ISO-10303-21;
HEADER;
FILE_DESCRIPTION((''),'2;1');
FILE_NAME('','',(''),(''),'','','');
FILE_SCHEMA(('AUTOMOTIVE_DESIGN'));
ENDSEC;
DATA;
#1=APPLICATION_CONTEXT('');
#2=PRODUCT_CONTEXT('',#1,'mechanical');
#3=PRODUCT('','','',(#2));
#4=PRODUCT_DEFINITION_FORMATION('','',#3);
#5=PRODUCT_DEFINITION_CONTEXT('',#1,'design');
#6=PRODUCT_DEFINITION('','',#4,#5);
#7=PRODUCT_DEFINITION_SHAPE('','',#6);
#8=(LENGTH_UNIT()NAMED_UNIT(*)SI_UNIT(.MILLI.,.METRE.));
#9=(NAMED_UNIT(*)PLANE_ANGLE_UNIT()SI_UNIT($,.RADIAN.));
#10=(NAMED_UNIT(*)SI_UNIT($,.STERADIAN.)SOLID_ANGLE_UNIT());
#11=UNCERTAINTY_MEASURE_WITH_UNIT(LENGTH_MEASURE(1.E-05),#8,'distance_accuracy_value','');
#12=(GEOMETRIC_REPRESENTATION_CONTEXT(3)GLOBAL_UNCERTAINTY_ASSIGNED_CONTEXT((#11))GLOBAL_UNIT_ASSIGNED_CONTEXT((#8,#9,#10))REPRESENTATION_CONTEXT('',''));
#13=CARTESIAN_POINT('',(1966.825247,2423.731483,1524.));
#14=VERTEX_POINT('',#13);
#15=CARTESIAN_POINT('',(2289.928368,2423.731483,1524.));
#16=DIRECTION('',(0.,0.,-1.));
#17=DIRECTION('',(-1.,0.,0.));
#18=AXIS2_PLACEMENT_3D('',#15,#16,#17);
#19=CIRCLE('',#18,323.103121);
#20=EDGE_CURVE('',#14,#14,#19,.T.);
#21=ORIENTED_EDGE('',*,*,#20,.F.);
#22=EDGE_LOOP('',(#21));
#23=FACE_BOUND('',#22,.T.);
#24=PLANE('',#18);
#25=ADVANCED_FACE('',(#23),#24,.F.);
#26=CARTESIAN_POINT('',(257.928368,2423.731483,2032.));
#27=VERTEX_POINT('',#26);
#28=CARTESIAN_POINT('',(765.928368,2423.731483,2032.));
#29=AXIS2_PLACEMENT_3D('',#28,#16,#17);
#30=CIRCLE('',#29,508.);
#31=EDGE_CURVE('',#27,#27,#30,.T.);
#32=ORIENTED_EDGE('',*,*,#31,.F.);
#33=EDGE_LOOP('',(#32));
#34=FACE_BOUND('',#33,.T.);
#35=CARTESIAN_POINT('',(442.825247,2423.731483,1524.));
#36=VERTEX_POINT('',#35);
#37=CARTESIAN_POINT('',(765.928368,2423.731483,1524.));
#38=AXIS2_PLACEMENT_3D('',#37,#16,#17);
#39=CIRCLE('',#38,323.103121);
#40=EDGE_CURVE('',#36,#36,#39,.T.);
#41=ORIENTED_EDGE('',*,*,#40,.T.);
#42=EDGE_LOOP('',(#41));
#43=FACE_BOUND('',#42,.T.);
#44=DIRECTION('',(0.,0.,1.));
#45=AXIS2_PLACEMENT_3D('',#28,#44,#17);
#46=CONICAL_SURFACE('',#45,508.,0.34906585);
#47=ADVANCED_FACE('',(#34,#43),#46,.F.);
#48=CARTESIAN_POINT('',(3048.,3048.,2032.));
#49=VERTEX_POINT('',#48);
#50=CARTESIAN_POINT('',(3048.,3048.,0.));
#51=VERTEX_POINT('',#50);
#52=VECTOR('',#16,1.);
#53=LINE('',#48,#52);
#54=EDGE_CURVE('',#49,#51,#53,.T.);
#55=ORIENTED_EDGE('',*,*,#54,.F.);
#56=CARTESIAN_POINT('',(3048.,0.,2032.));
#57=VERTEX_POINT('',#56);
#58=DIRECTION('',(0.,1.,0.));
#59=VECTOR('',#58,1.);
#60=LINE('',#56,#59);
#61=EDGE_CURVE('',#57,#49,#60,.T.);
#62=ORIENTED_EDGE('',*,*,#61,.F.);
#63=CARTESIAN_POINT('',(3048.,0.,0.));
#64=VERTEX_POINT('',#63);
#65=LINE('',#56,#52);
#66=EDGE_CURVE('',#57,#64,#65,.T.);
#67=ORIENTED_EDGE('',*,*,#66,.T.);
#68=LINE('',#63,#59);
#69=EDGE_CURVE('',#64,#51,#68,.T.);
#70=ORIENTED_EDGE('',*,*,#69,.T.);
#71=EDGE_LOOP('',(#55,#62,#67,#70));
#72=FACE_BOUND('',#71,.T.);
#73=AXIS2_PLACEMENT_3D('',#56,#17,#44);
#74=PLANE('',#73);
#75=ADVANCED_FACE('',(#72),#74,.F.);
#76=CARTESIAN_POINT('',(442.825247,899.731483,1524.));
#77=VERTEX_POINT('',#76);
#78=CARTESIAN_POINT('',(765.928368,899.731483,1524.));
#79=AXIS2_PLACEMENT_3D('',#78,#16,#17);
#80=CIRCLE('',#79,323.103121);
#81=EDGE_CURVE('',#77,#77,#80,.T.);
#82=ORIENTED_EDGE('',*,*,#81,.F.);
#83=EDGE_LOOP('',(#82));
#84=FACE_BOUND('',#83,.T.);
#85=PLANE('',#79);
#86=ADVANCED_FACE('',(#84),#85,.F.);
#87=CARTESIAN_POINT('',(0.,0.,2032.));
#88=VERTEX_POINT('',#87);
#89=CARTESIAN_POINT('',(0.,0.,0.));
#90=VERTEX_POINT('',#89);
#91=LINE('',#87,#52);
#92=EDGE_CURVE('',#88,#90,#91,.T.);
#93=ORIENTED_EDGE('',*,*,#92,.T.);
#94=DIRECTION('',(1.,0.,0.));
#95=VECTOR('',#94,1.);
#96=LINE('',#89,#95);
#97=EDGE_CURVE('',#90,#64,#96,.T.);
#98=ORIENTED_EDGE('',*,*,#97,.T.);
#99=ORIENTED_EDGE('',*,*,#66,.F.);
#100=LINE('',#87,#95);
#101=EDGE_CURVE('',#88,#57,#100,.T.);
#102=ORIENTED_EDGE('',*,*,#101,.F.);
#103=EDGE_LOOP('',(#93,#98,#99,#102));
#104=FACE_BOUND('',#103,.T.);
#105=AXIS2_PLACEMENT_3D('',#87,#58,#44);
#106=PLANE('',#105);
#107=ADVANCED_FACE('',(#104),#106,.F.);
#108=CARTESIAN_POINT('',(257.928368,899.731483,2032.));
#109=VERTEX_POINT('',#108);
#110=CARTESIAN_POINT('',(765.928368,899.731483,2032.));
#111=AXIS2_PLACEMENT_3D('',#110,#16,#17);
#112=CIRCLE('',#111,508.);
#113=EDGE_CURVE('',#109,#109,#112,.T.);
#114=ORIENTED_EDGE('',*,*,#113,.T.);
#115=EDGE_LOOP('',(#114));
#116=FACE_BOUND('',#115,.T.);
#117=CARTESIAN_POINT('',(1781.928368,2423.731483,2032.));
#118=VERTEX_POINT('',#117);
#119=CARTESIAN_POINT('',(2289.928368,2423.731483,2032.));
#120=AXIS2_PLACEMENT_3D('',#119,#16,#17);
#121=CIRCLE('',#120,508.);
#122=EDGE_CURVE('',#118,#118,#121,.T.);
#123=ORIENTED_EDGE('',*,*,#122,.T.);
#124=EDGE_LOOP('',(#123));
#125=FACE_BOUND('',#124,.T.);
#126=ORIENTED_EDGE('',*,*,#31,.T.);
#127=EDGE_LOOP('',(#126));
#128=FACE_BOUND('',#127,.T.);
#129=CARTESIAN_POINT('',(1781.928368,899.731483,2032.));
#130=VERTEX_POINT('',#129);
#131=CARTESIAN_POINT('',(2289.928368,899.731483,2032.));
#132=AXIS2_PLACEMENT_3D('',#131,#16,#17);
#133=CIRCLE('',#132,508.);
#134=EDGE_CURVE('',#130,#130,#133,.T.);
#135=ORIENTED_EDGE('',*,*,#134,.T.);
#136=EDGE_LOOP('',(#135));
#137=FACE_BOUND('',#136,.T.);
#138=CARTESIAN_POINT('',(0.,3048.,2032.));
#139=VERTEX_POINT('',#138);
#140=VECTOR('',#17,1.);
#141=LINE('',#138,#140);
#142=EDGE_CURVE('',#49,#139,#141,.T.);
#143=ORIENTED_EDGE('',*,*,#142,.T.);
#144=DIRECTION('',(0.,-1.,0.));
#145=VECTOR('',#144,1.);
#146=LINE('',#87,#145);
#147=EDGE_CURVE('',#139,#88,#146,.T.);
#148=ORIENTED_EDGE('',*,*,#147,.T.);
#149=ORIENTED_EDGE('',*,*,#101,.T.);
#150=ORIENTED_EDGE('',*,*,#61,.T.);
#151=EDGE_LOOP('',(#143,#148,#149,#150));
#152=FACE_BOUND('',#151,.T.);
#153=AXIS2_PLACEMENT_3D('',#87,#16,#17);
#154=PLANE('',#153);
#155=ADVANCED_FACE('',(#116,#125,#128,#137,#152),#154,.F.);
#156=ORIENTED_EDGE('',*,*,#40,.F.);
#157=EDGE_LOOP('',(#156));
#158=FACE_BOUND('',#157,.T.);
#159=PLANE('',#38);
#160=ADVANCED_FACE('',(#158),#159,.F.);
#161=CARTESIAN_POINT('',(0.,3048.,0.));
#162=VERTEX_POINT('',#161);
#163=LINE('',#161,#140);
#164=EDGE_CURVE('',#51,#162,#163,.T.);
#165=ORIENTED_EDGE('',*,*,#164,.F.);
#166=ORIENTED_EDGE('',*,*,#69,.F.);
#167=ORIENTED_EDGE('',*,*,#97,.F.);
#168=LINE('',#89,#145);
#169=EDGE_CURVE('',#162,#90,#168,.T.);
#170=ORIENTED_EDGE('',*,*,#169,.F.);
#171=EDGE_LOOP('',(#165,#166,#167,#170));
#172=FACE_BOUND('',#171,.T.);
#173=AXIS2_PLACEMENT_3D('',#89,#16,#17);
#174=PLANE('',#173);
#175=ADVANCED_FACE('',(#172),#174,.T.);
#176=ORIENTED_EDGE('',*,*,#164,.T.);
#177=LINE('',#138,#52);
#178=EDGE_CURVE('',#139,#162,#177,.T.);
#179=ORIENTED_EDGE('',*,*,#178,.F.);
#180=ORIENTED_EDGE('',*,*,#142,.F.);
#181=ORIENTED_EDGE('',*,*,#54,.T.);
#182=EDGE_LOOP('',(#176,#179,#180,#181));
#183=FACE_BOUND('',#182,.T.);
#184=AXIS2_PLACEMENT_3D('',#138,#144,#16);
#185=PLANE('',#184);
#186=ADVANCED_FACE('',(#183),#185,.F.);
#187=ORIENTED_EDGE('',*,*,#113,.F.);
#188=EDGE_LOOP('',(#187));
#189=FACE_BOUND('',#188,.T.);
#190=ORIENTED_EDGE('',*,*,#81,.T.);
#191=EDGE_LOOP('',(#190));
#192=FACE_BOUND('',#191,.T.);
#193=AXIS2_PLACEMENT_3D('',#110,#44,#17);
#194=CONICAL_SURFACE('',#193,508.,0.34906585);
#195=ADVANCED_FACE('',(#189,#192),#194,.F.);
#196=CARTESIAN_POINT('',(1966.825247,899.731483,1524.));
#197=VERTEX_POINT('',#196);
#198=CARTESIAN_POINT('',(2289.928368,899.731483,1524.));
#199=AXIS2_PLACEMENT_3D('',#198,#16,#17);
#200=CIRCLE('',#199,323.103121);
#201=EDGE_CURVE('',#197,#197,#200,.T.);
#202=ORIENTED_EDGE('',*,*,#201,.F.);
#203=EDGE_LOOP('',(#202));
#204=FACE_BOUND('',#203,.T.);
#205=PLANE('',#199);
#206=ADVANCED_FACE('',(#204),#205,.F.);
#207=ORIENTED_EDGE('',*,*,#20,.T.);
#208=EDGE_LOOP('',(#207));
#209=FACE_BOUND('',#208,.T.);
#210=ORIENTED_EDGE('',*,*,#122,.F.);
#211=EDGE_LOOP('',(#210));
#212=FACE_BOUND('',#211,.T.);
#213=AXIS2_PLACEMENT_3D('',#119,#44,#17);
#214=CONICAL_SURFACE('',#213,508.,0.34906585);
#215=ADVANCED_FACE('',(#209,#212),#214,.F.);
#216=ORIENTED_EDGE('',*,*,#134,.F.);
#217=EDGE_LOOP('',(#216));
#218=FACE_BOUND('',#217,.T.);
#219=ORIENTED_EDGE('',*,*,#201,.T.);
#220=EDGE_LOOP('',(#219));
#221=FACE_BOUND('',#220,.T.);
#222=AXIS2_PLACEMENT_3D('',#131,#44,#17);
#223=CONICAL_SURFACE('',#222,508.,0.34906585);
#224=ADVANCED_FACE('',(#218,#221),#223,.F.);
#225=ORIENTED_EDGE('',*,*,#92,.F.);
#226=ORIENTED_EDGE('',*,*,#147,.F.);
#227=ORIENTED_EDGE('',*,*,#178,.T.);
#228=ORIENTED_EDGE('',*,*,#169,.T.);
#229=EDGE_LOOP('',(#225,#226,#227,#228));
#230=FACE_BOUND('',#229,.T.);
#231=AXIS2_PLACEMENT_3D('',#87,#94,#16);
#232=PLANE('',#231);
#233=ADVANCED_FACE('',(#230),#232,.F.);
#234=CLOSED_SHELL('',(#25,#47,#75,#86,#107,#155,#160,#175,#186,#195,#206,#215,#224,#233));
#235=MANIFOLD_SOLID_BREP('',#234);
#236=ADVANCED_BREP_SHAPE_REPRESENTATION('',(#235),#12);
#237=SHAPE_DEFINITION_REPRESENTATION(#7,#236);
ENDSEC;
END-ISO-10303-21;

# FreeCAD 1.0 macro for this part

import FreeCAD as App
import Part
import Sketcher
from FreeCAD import Vector
Q = App.Units.Quantity


def faces_at(feature, points):
    """Names of the faces that lie closest to the given points."""
    faces = feature.Shape.Faces
    near = lambda p: min(range(len(faces)), key=lambda i: faces[i].distToShape(Part.Vertex(*p))[0])
    return sorted({f"Face{near(p) + 1}" for p in points})


def add_polygon(sketch, points):
    """Adds a closed chain of lines whose ends are joined by coincident constraints."""
    first, n = sketch.GeometryCount, len(points)
    for a, b in zip(points, points[1:] + points[:1]):
        sketch.addGeometry(Part.LineSegment(App.Vector(*a, 0), App.Vector(*b, 0)), False)
    for i in range(n):
        sketch.addConstraint(Sketcher.Constraint("Coincident", first + i, 2, first + (i + 1) % n, 1))

doc = App.newDocument("Part")
body = doc.addObject("PartDesign::Body", "Body")

sketch1 = body.newObject("Sketcher::SketchObject", "Sketch")
sketch1.AttachmentSupport = (doc.getObject("XY_Plane"), [""])
sketch1.MapMode = "FlatFace"
add_polygon(sketch1, [(0, 3048), (0, 0), (3048, 0), (3048, 3048)])
sketch1.addConstraint([
    Sketcher.Constraint("Vertical", 0),
    Sketcher.Constraint("Horizontal", 1),
    Sketcher.Constraint("Vertical", 2),
    Sketcher.Constraint("Horizontal", 3),
    Sketcher.Constraint("Coincident", 0, 2, -1, 1),
    Sketcher.Constraint("Equal", 3, 0),
    Sketcher.Constraint("DistanceX", 1, 1, 1, 2, Q("120 in")),
])
pad1 = body.newObject("PartDesign::Pad", "Pad")
pad1.Profile = sketch1
pad1.Length = Q("80 in")
body2 = doc.addObject("PartDesign::Body", "Body001")

sketch2 = body2.newObject("Sketcher::SketchObject", "Sketch001")
sketch2.AttachmentSupport = (doc.getObject("XY_Plane001"), [""])
sketch2.MapMode = "FlatFace"
sketch2.AttachmentOffset = App.Placement(Vector(0, 0, 80 * 25.4), App.Rotation())
sketch2.addGeometry(Part.Circle(Vector(766, 2424, 0), Vector(0, 0, 1), 508), False)
sketch2.addConstraint([
    Sketcher.Constraint("Diameter", 0, Q("40 in")),
    Sketcher.Constraint("DistanceX", -1, 1, 0, 3, 765.928368),
    Sketcher.Constraint("DistanceY", -1, 1, 0, 3, 2423.731483),
])
pad2 = body2.newObject("PartDesign::Pad", "Pad001")
pad2.Profile = sketch2
pad2.Length = Q("20 in")
pad2.Reversed = True
doc.recompute()

datumplane = body2.newObject("PartDesign::Plane", "DatumPlane")
datumplane.AttachmentSupport = (doc.getObject("XY_Plane001"), [""])
datumplane.MapMode = "FlatFace"
datumplane.AttachmentOffset = App.Placement(Vector(0, 0, 80 * 25.4), App.Rotation())
draft = body2.newObject("PartDesign::Draft", "Draft")
draft.Base = (pad2, faces_at(pad2, [(257.928, 2423.731, 1778)]))
draft.NeutralPlane = (datumplane, [""])
draft.Angle = 20
draft.Reversed = True
doc.recompute()

boolean = body.newObject("PartDesign::Boolean", "Boolean")
boolean.Type = "Cut"
boolean.addObjects([body2])
body3 = doc.addObject("PartDesign::Body", "Body002")

sketch3 = body3.newObject("Sketcher::SketchObject", "Sketch002")
sketch3.AttachmentSupport = (doc.getObject("XY_Plane002"), [""])
sketch3.MapMode = "FlatFace"
sketch3.AttachmentOffset = App.Placement(Vector(0, 0, 80 * 25.4), App.Rotation())
sketch3.addGeometry(Part.Circle(Vector(766, 900, 0), Vector(0, 0, 1), 508), False)
sketch3.addConstraint([
    Sketcher.Constraint("Diameter", 0, Q("40 in")),
    Sketcher.Constraint("DistanceX", -1, 1, 0, 3, 765.928368),
    Sketcher.Constraint("DistanceY", -1, 1, 0, 3, 899.731483),
])
pad3 = body3.newObject("PartDesign::Pad", "Pad002")
pad3.Profile = sketch3
pad3.Length = Q("20 in")
pad3.Reversed = True
doc.recompute()

datumplane2 = body3.newObject("PartDesign::Plane", "DatumPlane001")
datumplane2.AttachmentSupport = (doc.getObject("XY_Plane002"), [""])
datumplane2.MapMode = "FlatFace"
datumplane2.AttachmentOffset = App.Placement(Vector(0, 0, 80 * 25.4), App.Rotation())
draft2 = body3.newObject("PartDesign::Draft", "Draft001")
draft2.Base = (pad3, faces_at(pad3, [(257.928, 899.731, 1778)]))
draft2.NeutralPlane = (datumplane2, [""])
draft2.Angle = 20
draft2.Reversed = True
doc.recompute()

boolean2 = body.newObject("PartDesign::Boolean", "Boolean001")
boolean2.Type = "Cut"
boolean2.addObjects([body3])
body4 = doc.addObject("PartDesign::Body", "Body003")

sketch4 = body4.newObject("Sketcher::SketchObject", "Sketch003")
sketch4.AttachmentSupport = (doc.getObject("XY_Plane003"), [""])
sketch4.MapMode = "FlatFace"
sketch4.AttachmentOffset = App.Placement(Vector(0, 0, 80 * 25.4), App.Rotation())
sketch4.addGeometry(Part.Circle(Vector(2290, 2424, 0), Vector(0, 0, 1), 508), False)
sketch4.addConstraint([
    Sketcher.Constraint("Diameter", 0, Q("40 in")),
    Sketcher.Constraint("DistanceX", -1, 1, 0, 3, 2289.928368),
    Sketcher.Constraint("DistanceY", -1, 1, 0, 3, 2423.731483),
])
pad4 = body4.newObject("PartDesign::Pad", "Pad003")
pad4.Profile = sketch4
pad4.Length = Q("20 in")
pad4.Reversed = True
doc.recompute()

datumplane3 = body4.newObject("PartDesign::Plane", "DatumPlane002")
datumplane3.AttachmentSupport = (doc.getObject("XY_Plane003"), [""])
datumplane3.MapMode = "FlatFace"
datumplane3.AttachmentOffset = App.Placement(Vector(0, 0, 80 * 25.4), App.Rotation())
draft3 = body4.newObject("PartDesign::Draft", "Draft002")
draft3.Base = (pad4, faces_at(pad4, [(1781.928, 2423.731, 1778)]))
draft3.NeutralPlane = (datumplane3, [""])
draft3.Angle = 20
draft3.Reversed = True
doc.recompute()

boolean3 = body.newObject("PartDesign::Boolean", "Boolean002")
boolean3.Type = "Cut"
boolean3.addObjects([body4])
body5 = doc.addObject("PartDesign::Body", "Body004")

sketch5 = body5.newObject("Sketcher::SketchObject", "Sketch004")
sketch5.AttachmentSupport = (doc.getObject("XY_Plane004"), [""])
sketch5.MapMode = "FlatFace"
sketch5.AttachmentOffset = App.Placement(Vector(0, 0, 80 * 25.4), App.Rotation())
sketch5.addGeometry(Part.Circle(Vector(2290, 900, 0), Vector(0, 0, 1), 508), False)
sketch5.addConstraint([
    Sketcher.Constraint("Diameter", 0, Q("40 in")),
    Sketcher.Constraint("DistanceX", -1, 1, 0, 3, 2289.928368),
    Sketcher.Constraint("DistanceY", -1, 1, 0, 3, 899.731483),
])
pad5 = body5.newObject("PartDesign::Pad", "Pad004")
pad5.Profile = sketch5
pad5.Length = Q("20 in")
pad5.Reversed = True
doc.recompute()

datumplane4 = body5.newObject("PartDesign::Plane", "DatumPlane003")
datumplane4.AttachmentSupport = (doc.getObject("XY_Plane004"), [""])
datumplane4.MapMode = "FlatFace"
datumplane4.AttachmentOffset = App.Placement(Vector(0, 0, 80 * 25.4), App.Rotation())
draft4 = body5.newObject("PartDesign::Draft", "Draft003")
draft4.Base = (pad5, faces_at(pad5, [(1781.928, 899.731, 1778)]))
draft4.NeutralPlane = (datumplane4, [""])
draft4.Angle = 20
draft4.Reversed = True
doc.recompute()

boolean4 = body.newObject("PartDesign::Boolean", "Boolean003")
boolean4.Type = "Cut"
boolean4.addObjects([body5])

doc.recompute()
